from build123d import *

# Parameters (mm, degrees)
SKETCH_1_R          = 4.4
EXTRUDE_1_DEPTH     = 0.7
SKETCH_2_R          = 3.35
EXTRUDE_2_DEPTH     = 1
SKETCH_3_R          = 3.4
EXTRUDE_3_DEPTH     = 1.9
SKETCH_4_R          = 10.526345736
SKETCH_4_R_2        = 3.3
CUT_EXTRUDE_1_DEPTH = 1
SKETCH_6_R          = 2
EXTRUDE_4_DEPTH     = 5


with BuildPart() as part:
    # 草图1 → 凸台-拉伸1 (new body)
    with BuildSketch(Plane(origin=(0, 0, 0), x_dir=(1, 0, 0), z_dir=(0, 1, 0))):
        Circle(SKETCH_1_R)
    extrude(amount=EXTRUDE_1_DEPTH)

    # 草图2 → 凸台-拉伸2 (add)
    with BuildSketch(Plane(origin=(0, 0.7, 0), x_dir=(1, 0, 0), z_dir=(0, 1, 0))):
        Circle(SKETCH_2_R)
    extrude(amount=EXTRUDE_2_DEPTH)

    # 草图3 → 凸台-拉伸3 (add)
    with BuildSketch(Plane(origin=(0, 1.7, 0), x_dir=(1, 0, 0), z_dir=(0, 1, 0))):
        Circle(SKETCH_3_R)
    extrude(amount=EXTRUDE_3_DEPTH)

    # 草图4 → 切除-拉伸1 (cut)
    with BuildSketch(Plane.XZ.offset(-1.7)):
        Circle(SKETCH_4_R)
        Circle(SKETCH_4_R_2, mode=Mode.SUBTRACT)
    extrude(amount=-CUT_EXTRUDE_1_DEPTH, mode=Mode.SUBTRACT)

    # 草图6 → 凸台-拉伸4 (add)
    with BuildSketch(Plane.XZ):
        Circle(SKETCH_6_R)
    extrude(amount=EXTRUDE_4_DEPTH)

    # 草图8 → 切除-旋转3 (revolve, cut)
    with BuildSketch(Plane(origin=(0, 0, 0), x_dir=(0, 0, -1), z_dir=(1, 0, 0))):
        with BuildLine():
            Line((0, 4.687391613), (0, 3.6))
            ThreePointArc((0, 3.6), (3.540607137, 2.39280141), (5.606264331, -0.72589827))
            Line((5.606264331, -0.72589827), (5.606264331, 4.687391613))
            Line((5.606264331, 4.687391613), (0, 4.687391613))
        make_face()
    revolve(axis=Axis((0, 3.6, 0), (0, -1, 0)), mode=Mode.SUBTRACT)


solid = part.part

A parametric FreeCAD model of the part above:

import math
import FreeCAD as App
import Part
import Sketcher

V = App.Vector

doc = App.newDocument("Part")
params = doc.addObject("Spreadsheet::Sheet", "Params")
for row, (alias, value) in enumerate([
    ("sketch1_diameter", "8.8 mm"),
    ("pad1_length", "0.7 mm"),
    ("sketch2_diameter", "6.7 mm"),
    ("pad2_length", "1 mm"),
    ("sketch3_diameter", "6.8 mm"),
    ("pad3_length", "1.9 mm"),
    ("sketch4_diameter", "6.6 mm"),
    ("pocket1_length", "1 mm"),
    ("sketch5_diameter", "4 mm"),
    ("pad4_length", "5 mm"),
    ("groove_angle", "360 deg"),
], start=1):
    params.set(f"A{row}", alias)
    params.set(f"B{row}", "=" + value)
    params.setAlias(f"B{row}", alias)

body = doc.addObject("PartDesign::Body", "Body")

sketch1 = body.newObject("Sketcher::SketchObject", "Sketch")
sketch1.AttachmentSupport = (doc.getObject("XZ_Plane"), [""])
sketch1.MapMode = "FlatFace"
sketch1.addGeometry(Part.Circle(V(0, 0, 0), V(0, 0, 1), 4.4), False)
sketch1.addConstraint(Sketcher.Constraint("Coincident", 0, 3, -1, 1))
sketch1.addConstraint(Sketcher.Constraint("Diameter", 0, 8.8))
sketch1.setExpression("Constraints[1]", "Params.sketch1_diameter")
pad1 = body.newObject("PartDesign::Pad", "Pad")
pad1.Profile = sketch1
pad1.setExpression("Length", "Params.pad1_length")
pad1.Reversed = True

sketch2 = body.newObject("Sketcher::SketchObject", "Sketch001")
sketch2.AttachmentSupport = (doc.getObject("XZ_Plane"), [""])
sketch2.MapMode = "FlatFace"
sketch2.AttachmentOffset = App.Placement(V(0, 0, -0.7), App.Rotation())
sketch2.addGeometry(Part.Circle(V(0, 0, 0), V(0, 0, 1), 3.4), False)
sketch2.addConstraint(Sketcher.Constraint("Coincident", 0, 3, -1, 1))
sketch2.addConstraint(Sketcher.Constraint("Diameter", 0, 6.7))
sketch2.setExpression("Constraints[1]", "Params.sketch2_diameter")
pad2 = body.newObject("PartDesign::Pad", "Pad001")
pad2.Profile = sketch2
pad2.setExpression("Length", "Params.pad2_length")
pad2.Reversed = True

sketch3 = body.newObject("Sketcher::SketchObject", "Sketch002")
sketch3.AttachmentSupport = (doc.getObject("XZ_Plane"), [""])
sketch3.MapMode = "FlatFace"
sketch3.AttachmentOffset = App.Placement(V(0, 0, -1.7), App.Rotation())
sketch3.addGeometry(Part.Circle(V(0, 0, 0), V(0, 0, 1), 3.4), False)
sketch3.addConstraint(Sketcher.Constraint("Coincident", 0, 3, -1, 1))
sketch3.addConstraint(Sketcher.Constraint("Diameter", 0, 6.8))
sketch3.setExpression("Constraints[1]", "Params.sketch3_diameter")
pad3 = body.newObject("PartDesign::Pad", "Pad002")
pad3.Profile = sketch3
pad3.setExpression("Length", "Params.pad3_length")
pad3.Reversed = True

sketch4 = body.newObject("Sketcher::SketchObject", "Sketch003")
sketch4.AttachmentSupport = (doc.getObject("XZ_Plane"), [""])
sketch4.MapMode = "FlatFace"
sketch4.AttachmentOffset = App.Placement(V(0, 0, -1.7), App.Rotation())
sketch4.addGeometry(Part.Circle(V(0, 0, 0), V(0, 0, 1), 10.5), False)
sketch4.addGeometry(Part.Circle(V(0, 0, 0), V(0, 0, 1), 3.3), False)
sketch4.addConstraint(Sketcher.Constraint("Coincident", 0, 3, -1, 1))
sketch4.addConstraint(Sketcher.Constraint("Coincident", 1, 3, -1, 1))
sketch4.addConstraint(Sketcher.Constraint("Diameter", 1, 6.6))
sketch4.addConstraint(Sketcher.Constraint("Diameter", 0, 21.052691))
sketch4.setExpression("Constraints[2]", "Params.sketch4_diameter")
pocket1 = body.newObject("PartDesign::Pocket", "Pocket")
pocket1.Profile = sketch4
pocket1.setExpression("Length", "Params.pocket1_length")

sketch5 = body.newObject("Sketcher::SketchObject", "Sketch004")
sketch5.AttachmentSupport = (doc.getObject("XZ_Plane"), [""])
sketch5.MapMode = "FlatFace"
sketch5.addGeometry(Part.Circle(V(0, 0, 0), V(0, 0, 1), 2), False)
sketch5.addConstraint(Sketcher.Constraint("Coincident", 0, 3, -1, 1))
sketch5.addConstraint(Sketcher.Constraint("Diameter", 0, 4.0))
sketch5.setExpression("Constraints[1]", "Params.sketch5_diameter")
pad4 = body.newObject("PartDesign::Pad", "Pad003")
pad4.Profile = sketch5
pad4.setExpression("Length", "Params.pad4_length")

sketch6 = body.newObject("Sketcher::SketchObject", "Sketch005")
sketch6.AttachmentSupport = (doc.getObject("YZ_Plane"), [""])
sketch6.MapMode = "FlatFace"
sketch6.addGeometry(Part.LineSegment(V(4.7, 0, 0), V(3.6, 0, 0)), False)
sketch6.addGeometry(Part.ArcOfCircle(Part.Circle(V(-2.2, 0, 0), V(0, 0, 1), 5.8), math.radians(-75), math.radians(0)), False)
sketch6.addGeometry(Part.LineSegment(V(-0.7, -5.6, 0), V(4.7, -5.6, 0)), False)
sketch6.addGeometry(Part.LineSegment(V(4.7, -5.6, 0), V(4.7, 0, 0)), False)
sketch6.addConstraint(Sketcher.Constraint("Coincident", 0, 2, 1, 2))
sketch6.addConstraint(Sketcher.Constraint("Coincident", 1, 1, 2, 1))
sketch6.addConstraint(Sketcher.Constraint("Coincident", 2, 2, 3, 1))
sketch6.addConstraint(Sketcher.Constraint("Coincident", 3, 2, 0, 1))
sketch6.addConstraint(Sketcher.Constraint("Horizontal", 0))
sketch6.addConstraint(Sketcher.Constraint("Horizontal", 2))
sketch6.addConstraint(Sketcher.Constraint("Vertical", 3))
sketch6.addConstraint(Sketcher.Constraint("PointOnObject", 1, 3, -1))
sketch6.addConstraint(Sketcher.Constraint("PointOnObject", 0, 2, -1))
sketch6.addConstraint(Sketcher.Constraint("DistanceX", -1, 1, 0, 2, 3.6))
sketch6.addConstraint(Sketcher.Constraint("Radius", 1, 5.795744))
sketch6.addConstraint(Sketcher.Constraint("DistanceX", 0, 2, 0, 1, 1.087392))
sketch6.addConstraint(Sketcher.Constraint("DistanceX", 2, 1, 2, 2, 5.41329))
groove = body.newObject("PartDesign::Groove", "Groove")
groove.Profile = sketch6
groove.ReferenceAxis = (sketch6, ["H_Axis"])
groove.setExpression("Angle", "Params.groove_angle")

doc.recompute()
